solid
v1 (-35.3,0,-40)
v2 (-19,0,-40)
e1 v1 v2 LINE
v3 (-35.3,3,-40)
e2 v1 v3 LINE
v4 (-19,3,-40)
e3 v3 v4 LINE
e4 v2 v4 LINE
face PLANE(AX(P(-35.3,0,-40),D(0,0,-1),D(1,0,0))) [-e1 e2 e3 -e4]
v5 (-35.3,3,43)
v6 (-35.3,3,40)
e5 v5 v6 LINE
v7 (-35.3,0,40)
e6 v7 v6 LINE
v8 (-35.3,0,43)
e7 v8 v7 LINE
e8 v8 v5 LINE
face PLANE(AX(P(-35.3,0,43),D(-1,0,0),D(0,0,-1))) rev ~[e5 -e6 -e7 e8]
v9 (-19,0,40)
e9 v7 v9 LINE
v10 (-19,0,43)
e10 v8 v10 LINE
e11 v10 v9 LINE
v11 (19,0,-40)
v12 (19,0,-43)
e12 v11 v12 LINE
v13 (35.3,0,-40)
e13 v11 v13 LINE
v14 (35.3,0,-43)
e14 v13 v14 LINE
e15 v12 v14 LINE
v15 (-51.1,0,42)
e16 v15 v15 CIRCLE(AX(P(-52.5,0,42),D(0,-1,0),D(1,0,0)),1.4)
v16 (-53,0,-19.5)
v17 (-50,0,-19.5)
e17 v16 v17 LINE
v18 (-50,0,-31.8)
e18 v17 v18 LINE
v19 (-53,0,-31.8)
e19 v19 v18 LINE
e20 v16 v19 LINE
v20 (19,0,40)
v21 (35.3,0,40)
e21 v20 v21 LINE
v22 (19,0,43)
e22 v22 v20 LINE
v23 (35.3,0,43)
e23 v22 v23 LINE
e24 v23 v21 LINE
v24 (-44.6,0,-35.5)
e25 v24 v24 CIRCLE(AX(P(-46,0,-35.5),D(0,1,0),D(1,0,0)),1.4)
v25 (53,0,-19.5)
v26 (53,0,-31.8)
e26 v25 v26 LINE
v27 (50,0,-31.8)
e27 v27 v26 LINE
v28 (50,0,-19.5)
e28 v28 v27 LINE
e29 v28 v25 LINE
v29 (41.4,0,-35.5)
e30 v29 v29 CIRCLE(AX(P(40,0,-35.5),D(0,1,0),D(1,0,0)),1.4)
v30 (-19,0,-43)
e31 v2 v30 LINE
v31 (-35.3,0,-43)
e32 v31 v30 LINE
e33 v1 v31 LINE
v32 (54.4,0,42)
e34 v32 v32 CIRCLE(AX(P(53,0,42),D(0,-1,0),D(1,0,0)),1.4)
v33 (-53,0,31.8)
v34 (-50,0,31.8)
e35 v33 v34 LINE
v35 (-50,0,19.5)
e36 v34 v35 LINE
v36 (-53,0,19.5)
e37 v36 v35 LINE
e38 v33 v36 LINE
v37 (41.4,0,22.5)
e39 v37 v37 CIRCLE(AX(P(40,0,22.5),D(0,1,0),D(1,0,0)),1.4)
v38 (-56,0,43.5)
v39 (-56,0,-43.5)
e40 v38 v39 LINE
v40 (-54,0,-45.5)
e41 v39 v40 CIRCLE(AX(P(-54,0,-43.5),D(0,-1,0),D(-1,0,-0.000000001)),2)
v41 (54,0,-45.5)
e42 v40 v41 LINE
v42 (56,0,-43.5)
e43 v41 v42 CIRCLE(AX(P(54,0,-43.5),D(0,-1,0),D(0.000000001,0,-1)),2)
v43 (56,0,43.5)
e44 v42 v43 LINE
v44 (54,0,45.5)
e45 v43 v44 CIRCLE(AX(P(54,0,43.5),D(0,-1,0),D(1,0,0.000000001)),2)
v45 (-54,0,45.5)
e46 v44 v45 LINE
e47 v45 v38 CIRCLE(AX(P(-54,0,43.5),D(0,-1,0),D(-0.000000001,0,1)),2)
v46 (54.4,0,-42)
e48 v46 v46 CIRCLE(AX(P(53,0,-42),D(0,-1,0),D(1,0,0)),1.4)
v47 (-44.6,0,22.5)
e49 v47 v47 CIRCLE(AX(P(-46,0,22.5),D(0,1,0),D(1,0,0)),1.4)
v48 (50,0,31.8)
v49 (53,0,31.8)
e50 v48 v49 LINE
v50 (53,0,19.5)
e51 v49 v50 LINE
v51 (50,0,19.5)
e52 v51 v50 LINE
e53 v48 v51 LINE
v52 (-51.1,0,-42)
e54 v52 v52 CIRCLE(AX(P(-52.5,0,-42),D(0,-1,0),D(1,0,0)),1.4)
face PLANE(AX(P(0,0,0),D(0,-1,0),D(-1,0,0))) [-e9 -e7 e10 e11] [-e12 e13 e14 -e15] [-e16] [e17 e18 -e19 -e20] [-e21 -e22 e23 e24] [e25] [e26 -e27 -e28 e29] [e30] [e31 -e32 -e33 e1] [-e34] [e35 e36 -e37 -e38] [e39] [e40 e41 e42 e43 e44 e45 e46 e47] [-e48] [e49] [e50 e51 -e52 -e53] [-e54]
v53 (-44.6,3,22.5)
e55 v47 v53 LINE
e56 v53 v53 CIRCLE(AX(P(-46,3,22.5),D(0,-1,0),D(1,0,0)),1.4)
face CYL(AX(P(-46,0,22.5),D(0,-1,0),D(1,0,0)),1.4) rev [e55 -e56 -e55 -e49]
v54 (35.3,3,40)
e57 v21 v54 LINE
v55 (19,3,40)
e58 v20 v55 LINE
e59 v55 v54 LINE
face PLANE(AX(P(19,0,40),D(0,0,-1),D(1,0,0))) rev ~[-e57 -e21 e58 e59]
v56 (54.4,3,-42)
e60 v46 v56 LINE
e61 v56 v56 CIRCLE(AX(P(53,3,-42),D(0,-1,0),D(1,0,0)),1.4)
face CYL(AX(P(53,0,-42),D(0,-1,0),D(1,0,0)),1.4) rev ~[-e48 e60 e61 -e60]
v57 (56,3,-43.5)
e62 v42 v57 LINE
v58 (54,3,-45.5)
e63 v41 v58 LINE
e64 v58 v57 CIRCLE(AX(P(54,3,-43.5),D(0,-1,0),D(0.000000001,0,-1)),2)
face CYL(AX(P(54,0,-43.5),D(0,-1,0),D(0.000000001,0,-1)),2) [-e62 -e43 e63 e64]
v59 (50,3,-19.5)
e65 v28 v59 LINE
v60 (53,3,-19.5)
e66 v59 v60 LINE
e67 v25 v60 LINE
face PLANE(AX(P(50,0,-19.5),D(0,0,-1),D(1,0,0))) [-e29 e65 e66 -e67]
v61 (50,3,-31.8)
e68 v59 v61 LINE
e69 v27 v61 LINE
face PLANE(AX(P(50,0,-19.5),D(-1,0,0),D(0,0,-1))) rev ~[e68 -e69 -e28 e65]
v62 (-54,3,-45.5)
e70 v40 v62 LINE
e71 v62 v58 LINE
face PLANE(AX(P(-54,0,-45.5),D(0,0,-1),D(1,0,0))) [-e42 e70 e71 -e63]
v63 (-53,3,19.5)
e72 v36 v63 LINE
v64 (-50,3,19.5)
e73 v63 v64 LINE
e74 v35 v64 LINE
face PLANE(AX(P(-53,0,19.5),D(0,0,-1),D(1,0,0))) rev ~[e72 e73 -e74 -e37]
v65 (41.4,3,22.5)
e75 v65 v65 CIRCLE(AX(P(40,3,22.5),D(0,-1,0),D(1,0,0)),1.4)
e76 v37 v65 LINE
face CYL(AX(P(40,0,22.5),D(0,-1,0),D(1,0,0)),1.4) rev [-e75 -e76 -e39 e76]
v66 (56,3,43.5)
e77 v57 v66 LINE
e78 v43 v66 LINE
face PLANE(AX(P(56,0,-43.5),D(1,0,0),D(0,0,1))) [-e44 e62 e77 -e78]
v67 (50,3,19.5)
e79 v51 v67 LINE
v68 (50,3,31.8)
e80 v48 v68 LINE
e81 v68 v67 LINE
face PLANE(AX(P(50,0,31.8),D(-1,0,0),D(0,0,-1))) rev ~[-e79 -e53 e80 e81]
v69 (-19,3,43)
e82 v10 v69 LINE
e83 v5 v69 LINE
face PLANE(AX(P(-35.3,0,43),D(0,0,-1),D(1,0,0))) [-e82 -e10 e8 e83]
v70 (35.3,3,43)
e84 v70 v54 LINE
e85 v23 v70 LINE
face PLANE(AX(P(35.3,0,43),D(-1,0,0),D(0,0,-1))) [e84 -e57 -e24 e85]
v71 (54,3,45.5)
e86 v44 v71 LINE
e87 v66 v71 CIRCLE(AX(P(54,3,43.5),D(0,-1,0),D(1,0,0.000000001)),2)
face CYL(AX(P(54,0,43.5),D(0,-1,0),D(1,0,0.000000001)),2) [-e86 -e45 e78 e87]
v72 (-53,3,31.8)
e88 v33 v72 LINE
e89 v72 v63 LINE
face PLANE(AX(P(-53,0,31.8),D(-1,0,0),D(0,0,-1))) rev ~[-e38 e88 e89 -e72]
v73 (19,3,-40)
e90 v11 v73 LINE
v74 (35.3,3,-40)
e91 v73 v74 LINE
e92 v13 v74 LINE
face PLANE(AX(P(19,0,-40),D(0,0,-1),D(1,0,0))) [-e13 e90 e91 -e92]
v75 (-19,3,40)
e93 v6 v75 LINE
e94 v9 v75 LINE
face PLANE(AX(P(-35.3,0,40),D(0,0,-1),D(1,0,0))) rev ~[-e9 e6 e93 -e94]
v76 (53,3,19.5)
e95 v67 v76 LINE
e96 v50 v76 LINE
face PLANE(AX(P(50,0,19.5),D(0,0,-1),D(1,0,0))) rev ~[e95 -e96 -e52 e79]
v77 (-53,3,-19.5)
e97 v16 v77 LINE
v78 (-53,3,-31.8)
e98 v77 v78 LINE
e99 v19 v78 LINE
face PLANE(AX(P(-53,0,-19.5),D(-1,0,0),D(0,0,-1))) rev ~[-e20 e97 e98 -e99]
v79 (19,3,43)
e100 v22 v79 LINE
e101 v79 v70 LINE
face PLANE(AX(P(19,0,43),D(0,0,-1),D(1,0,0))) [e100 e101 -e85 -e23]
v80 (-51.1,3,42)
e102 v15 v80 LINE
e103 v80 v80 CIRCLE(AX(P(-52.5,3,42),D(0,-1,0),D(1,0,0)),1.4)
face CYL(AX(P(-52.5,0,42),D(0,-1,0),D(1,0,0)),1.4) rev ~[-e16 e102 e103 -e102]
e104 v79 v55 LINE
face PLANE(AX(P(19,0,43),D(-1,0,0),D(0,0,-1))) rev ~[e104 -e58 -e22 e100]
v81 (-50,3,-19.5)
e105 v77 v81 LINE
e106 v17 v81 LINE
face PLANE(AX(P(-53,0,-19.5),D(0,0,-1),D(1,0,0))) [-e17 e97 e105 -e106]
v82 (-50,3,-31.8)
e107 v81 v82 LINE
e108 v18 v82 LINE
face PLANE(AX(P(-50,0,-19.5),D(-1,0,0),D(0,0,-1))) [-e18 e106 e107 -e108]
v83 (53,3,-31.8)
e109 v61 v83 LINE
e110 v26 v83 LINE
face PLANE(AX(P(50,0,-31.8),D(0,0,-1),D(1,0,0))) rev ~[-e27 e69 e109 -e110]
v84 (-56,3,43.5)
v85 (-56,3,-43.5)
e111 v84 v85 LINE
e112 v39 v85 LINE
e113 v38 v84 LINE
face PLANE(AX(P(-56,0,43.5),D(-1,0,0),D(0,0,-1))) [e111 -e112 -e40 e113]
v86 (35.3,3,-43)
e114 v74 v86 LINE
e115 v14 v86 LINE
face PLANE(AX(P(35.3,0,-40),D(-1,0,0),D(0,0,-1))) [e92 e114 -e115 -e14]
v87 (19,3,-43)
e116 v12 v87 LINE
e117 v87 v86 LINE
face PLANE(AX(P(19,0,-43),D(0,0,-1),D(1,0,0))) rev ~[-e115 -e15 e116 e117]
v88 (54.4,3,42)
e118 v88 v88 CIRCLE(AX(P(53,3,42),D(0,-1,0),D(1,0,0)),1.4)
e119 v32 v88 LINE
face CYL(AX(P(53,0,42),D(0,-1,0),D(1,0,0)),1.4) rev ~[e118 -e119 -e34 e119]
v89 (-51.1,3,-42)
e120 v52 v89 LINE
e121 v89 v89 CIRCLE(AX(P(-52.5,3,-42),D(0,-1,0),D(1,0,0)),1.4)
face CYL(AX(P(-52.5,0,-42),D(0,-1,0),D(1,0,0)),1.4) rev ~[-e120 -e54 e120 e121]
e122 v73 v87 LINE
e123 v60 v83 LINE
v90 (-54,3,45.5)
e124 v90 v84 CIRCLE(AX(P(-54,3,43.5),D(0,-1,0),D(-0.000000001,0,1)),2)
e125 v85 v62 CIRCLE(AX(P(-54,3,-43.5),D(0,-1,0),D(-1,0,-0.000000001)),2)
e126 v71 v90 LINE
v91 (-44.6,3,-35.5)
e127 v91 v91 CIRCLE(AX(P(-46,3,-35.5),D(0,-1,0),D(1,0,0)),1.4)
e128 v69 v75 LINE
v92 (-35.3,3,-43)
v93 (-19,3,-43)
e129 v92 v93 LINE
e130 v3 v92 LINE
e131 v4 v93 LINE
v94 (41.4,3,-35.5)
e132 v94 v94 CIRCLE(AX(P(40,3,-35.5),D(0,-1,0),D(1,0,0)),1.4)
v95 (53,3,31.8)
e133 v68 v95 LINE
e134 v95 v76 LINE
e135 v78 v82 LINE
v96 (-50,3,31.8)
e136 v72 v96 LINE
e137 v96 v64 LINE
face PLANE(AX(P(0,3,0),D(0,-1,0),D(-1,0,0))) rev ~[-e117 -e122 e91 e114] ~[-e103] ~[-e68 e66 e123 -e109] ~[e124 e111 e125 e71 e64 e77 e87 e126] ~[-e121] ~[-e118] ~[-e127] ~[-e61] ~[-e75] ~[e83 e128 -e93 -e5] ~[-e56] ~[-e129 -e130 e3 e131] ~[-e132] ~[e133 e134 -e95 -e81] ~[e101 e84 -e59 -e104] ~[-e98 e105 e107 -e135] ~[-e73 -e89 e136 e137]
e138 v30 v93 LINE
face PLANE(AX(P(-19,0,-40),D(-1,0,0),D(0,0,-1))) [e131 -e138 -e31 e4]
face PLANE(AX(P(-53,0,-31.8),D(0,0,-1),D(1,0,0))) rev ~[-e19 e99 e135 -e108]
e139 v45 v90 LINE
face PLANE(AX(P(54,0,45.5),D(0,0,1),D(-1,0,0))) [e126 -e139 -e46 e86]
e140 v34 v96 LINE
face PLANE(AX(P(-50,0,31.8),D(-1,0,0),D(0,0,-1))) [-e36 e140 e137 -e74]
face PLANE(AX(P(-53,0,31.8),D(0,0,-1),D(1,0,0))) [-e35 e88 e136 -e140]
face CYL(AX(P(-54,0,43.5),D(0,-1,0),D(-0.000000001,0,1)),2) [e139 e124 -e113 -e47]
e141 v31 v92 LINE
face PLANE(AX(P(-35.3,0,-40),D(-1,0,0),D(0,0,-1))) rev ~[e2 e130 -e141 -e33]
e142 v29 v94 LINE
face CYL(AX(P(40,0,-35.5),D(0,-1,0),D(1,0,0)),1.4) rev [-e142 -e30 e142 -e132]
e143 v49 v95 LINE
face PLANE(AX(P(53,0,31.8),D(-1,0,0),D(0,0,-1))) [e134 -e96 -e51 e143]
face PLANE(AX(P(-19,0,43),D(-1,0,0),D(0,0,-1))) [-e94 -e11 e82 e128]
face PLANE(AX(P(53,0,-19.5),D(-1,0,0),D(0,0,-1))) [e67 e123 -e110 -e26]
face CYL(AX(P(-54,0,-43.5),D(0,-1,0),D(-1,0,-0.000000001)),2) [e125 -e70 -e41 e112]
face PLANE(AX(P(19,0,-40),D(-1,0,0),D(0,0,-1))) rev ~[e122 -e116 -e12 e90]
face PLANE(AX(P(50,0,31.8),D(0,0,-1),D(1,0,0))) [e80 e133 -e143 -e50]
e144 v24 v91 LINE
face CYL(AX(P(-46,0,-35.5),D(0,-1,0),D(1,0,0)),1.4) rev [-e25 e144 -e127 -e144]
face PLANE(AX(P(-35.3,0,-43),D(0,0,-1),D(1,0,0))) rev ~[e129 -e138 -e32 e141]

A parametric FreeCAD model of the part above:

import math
import FreeCAD as App
import Part
import Sketcher

V = App.Vector

doc = App.newDocument("Part")
body = doc.addObject("PartDesign::Body", "Body")

# Sketch on XZ plane
sketch1 = body.newObject("Sketcher::SketchObject", "Sketch")
sketch1.AttachmentSupport = (doc.getObject("XZ_Plane"), [""])
sketch1.MapMode = "FlatFace"
sketch1.addGeometry([
    Part.LineSegment(V(54, -45.5, 0), V(-54, -45.5, 0)),  # 0
    Part.ArcOfCircle(Part.Circle(V(-54, -43.5, 0), V(0, 0, 1), 2), math.radians(-180), math.radians(-90)),  # 1
    Part.LineSegment(V(-56, -43.5, 0), V(-56, 43.5, 0)),  # 2
    Part.ArcOfCircle(Part.Circle(V(-54, 43.5, 0), V(0, 0, 1), 2), math.radians(90), math.radians(180)),  # 3
    Part.LineSegment(V(-54, 45.5, 0), V(54, 45.5, 0)),  # 4
    Part.ArcOfCircle(Part.Circle(V(54, 43.5, 0), V(0, 0, 1), 2), math.radians(0), math.radians(90)),  # 5
    Part.LineSegment(V(56, 43.5, 0), V(56, -43.5, 0)),  # 6
    Part.ArcOfCircle(Part.Circle(V(54, -43.5, 0), V(0, 0, 1), 2), math.radians(-90), math.radians(0)),  # 7
    Part.LineSegment(V(19, 43, 0), V(19, 40, 0)),  # 8
    Part.LineSegment(V(19, 40, 0), V(35.3, 40, 0)),  # 9
    Part.LineSegment(V(35.3, 40, 0), V(35.3, 43, 0)),  # 10
    Part.LineSegment(V(35.3, 43, 0), V(19, 43, 0)),  # 11
    Part.LineSegment(V(50, 31.8, 0), V(50, 19.5, 0)),  # 12
    Part.LineSegment(V(50, 19.5, 0), V(53, 19.5, 0)),  # 13
    Part.LineSegment(V(53, 19.5, 0), V(53, 31.8, 0)),  # 14
    Part.LineSegment(V(53, 31.8, 0), V(50, 31.8, 0)),  # 15
    Part.LineSegment(V(-35.3, 43, 0), V(-35.3, 40, 0)),  # 16
    Part.LineSegment(V(-35.3, 40, 0), V(-19, 40, 0)),  # 17
    Part.LineSegment(V(-19, 40, 0), V(-19, 43, 0)),  # 18
    Part.LineSegment(V(-19, 43, 0), V(-35.3, 43, 0)),  # 19
    Part.LineSegment(V(-53, 31.8, 0), V(-53, 19.5, 0)),  # 20
    Part.LineSegment(V(-53, 19.5, 0), V(-50, 19.5, 0)),  # 21
    Part.LineSegment(V(-50, 19.5, 0), V(-50, 31.8, 0)),  # 22
    Part.LineSegment(V(-50, 31.8, 0), V(-53, 31.8, 0)),  # 23
    Part.LineSegment(V(50, -19.5, 0), V(50, -31.8, 0)),  # 24
    Part.LineSegment(V(50, -31.8, 0), V(53, -31.8, 0)),  # 25
    Part.LineSegment(V(53, -31.8, 0), V(53, -19.5, 0)),  # 26
    Part.LineSegment(V(53, -19.5, 0), V(50, -19.5, 0)),  # 27
    Part.LineSegment(V(19, -40, 0), V(19, -43, 0)),  # 28
    Part.LineSegment(V(19, -43, 0), V(35.3, -43, 0)),  # 29
    Part.LineSegment(V(35.3, -43, 0), V(35.3, -40, 0)),  # 30
    Part.LineSegment(V(35.3, -40, 0), V(19, -40, 0)),  # 31
    Part.LineSegment(V(-53, -19.5, 0), V(-53, -31.8, 0)),  # 32
    Part.LineSegment(V(-53, -31.8, 0), V(-50, -31.8, 0)),  # 33
    Part.LineSegment(V(-50, -31.8, 0), V(-50, -19.5, 0)),  # 34
    Part.LineSegment(V(-50, -19.5, 0), V(-53, -19.5, 0)),  # 35
    Part.LineSegment(V(-35.3, -40, 0), V(-35.3, -43, 0)),  # 36
    Part.LineSegment(V(-35.3, -43, 0), V(-19, -43, 0)),  # 37
    Part.LineSegment(V(-19, -43, 0), V(-19, -40, 0)),  # 38
    Part.LineSegment(V(-19, -40, 0), V(-35.3, -40, 0)),  # 39
], False)
sketch1.addConstraint([
    Sketcher.Constraint("Tangent", 0, 2, 1, 2),
    Sketcher.Constraint("Tangent", 1, 1, 2, 1),
    Sketcher.Constraint("Tangent", 2, 2, 3, 2),
    Sketcher.Constraint("Tangent", 3, 1, 4, 1),
    Sketcher.Constraint("Tangent", 4, 2, 5, 2),
    Sketcher.Constraint("Tangent", 5, 1, 6, 1),
    Sketcher.Constraint("Tangent", 6, 2, 7, 2),
    Sketcher.Constraint("Tangent", 7, 1, 0, 1),
    Sketcher.Constraint("Coincident", 8, 2, 9, 1),
    Sketcher.Constraint("Coincident", 9, 2, 10, 1),
    Sketcher.Constraint("Coincident", 10, 2, 11, 1),
    Sketcher.Constraint("Coincident", 11, 2, 8, 1),
    Sketcher.Constraint("Coincident", 12, 2, 13, 1),
    Sketcher.Constraint("Coincident", 13, 2, 14, 1),
    Sketcher.Constraint("Coincident", 14, 2, 15, 1),
    Sketcher.Constraint("Coincident", 15, 2, 12, 1),
    Sketcher.Constraint("Coincident", 16, 2, 17, 1),
    Sketcher.Constraint("Coincident", 17, 2, 18, 1),
    Sketcher.Constraint("Coincident", 18, 2, 19, 1),
    Sketcher.Constraint("Coincident", 19, 2, 16, 1),
    Sketcher.Constraint("Coincident", 20, 2, 21, 1),
    Sketcher.Constraint("Coincident", 21, 2, 22, 1),
    Sketcher.Constraint("Coincident", 22, 2, 23, 1),
    Sketcher.Constraint("Coincident", 23, 2, 20, 1),
    Sketcher.Constraint("Coincident", 24, 2, 25, 1),
    Sketcher.Constraint("Coincident", 25, 2, 26, 1),
    Sketcher.Constraint("Coincident", 26, 2, 27, 1),
    Sketcher.Constraint("Coincident", 27, 2, 24, 1),
    Sketcher.Constraint("Coincident", 28, 2, 29, 1),
    Sketcher.Constraint("Coincident", 29, 2, 30, 1),
    Sketcher.Constraint("Coincident", 30, 2, 31, 1),
    Sketcher.Constraint("Coincident", 31, 2, 28, 1),
    Sketcher.Constraint("Coincident", 32, 2, 33, 1),
    Sketcher.Constraint("Coincident", 33, 2, 34, 1),
    Sketcher.Constraint("Coincident", 34, 2, 35, 1),
    Sketcher.Constraint("Coincident", 35, 2, 32, 1),
    Sketcher.Constraint("Coincident", 36, 2, 37, 1),
    Sketcher.Constraint("Coincident", 37, 2, 38, 1),
    Sketcher.Constraint("Coincident", 38, 2, 39, 1),
    Sketcher.Constraint("Coincident", 39, 2, 36, 1),
    Sketcher.Constraint("Horizontal", 0),
    Sketcher.Constraint("Vertical", 2),
    Sketcher.Constraint("Horizontal", 4),
    Sketcher.Constraint("Vertical", 6),
    Sketcher.Constraint("Vertical", 8),
    Sketcher.Constraint("Horizontal", 9),
    Sketcher.Constraint("Vertical", 10),
    Sketcher.Constraint("Horizontal", 11),
    Sketcher.Constraint("Vertical", 12),
    Sketcher.Constraint("Horizontal", 13),
    Sketcher.Constraint("Vertical", 14),
    Sketcher.Constraint("Horizontal", 15),
    Sketcher.Constraint("Vertical", 16),
    Sketcher.Constraint("Horizontal", 17),
    Sketcher.Constraint("Vertical", 18),
    Sketcher.Constraint("Horizontal", 19),
    Sketcher.Constraint("Vertical", 20),
    Sketcher.Constraint("Horizontal", 21),
    Sketcher.Constraint("Vertical", 22),
    Sketcher.Constraint("Horizontal", 23),
    Sketcher.Constraint("Vertical", 24),
    Sketcher.Constraint("Horizontal", 25),
    Sketcher.Constraint("Vertical", 26),
    Sketcher.Constraint("Horizontal", 27),
    Sketcher.Constraint("Vertical", 28),
    Sketcher.Constraint("Horizontal", 29),
    Sketcher.Constraint("Vertical", 30),
    Sketcher.Constraint("Horizontal", 31),
    Sketcher.Constraint("Vertical", 32),
    Sketcher.Constraint("Horizontal", 33),
    Sketcher.Constraint("Vertical", 34),
    Sketcher.Constraint("Horizontal", 35),
    Sketcher.Constraint("Vertical", 36),
    Sketcher.Constraint("Horizontal", 37),
    Sketcher.Constraint("Vertical", 38),
    Sketcher.Constraint("Horizontal", 39),
    Sketcher.Constraint("Equal", 1, 3),
    Sketcher.Constraint("Equal", 3, 5),
    Sketcher.Constraint("Equal", 5, 7),
    Sketcher.Constraint("Symmetric", 1, 3, 5, 3, -1, 1),
    Sketcher.Constraint("Symmetric", 22, 2, 24, 2, -1, 1),
    Sketcher.Constraint("Symmetric", 20, 2, 26, 2, -1, 1),
    Sketcher.Constraint("Symmetric", 18, 2, 28, 2, -1, 1),
    Sketcher.Constraint("Symmetric", 16, 2, 30, 2, -1, 1),
    Sketcher.Constraint("Symmetric", 14, 2, 32, 2, -1, 1),
    Sketcher.Constraint("Symmetric", 12, 2, 34, 2, -1, 1),
    Sketcher.Constraint("Symmetric", 10, 2, 36, 2, -1, 1),
    Sketcher.Constraint("Symmetric", 8, 2, 38, 2, -1, 1),
    Sketcher.Constraint("Symmetric", 9, 2, 16, 2, -2),
    Sketcher.Constraint("Symmetric", 11, 2, 18, 2, -2),
    Sketcher.Constraint("Symmetric", 13, 2, 20, 2, -2),
    Sketcher.Constraint("Symmetric", 15, 2, 22, 2, -2),
    Sketcher.Constraint("Equal", 35, 8),
    Sketcher.Constraint("Radius", 1, 2.0),
    Sketcher.Constraint("DistanceX", 0, 2, 0, 1, 108.0),
    Sketcher.Constraint("DistanceX", 13, 1, 13, 2, 3.0),
    Sketcher.Constraint("DistanceY", 2, 1, 2, 2, 87.0),
    Sketcher.Constraint("DistanceX", 9, 1, 9, 2, 16.3),
    Sketcher.Constraint("DistanceY", 12, 2, 12, 1, 12.3),
    Sketcher.Constraint("DistanceX", -1, 1, 8, 2, 19.0),
    Sketcher.Constraint("DistanceY", -1, 1, 8, 2, 40.0),
    Sketcher.Constraint("DistanceX", -1, 1, 12, 2, 50.0),
    Sketcher.Constraint("DistanceY", 12, 2, 5, 3, 24.0),
])
pad1 = body.newObject("PartDesign::Pad", "Pad")
pad1.Profile = sketch1
pad1.Length = 3
pad1.Reversed = True

# Sketch on XZ plane
sketch2 = body.newObject("Sketcher::SketchObject", "Sketch001")
sketch2.AttachmentSupport = (doc.getObject("XZ_Plane"), [""])
sketch2.MapMode = "FlatFace"
sketch2.addGeometry(Part.Circle(V(53, -42, 0), V(0, 0, 1), 1.4), False)
sketch2.addConstraint([
    Sketcher.Constraint("Diameter", 0, 2.8),
    Sketcher.Constraint("DistanceX", -1, 1, 0, 3, 53.0),
    Sketcher.Constraint("DistanceY", 0, 3, -1, 1, 42.0),
])
pocket1 = body.newObject("PartDesign::Pocket", "Pocket")
pocket1.Profile = sketch2
pocket1.Type = "UpToFirst"

# Sketch on XZ plane
sketch3 = body.newObject("Sketcher::SketchObject", "Sketch002")
sketch3.AttachmentSupport = (doc.getObject("XZ_Plane"), [""])
sketch3.MapMode = "FlatFace"
sketch3.addGeometry(Part.Circle(V(-52.5, -42, 0), V(0, 0, 1), 1.4), False)
sketch3.addConstraint([
    Sketcher.Constraint("Diameter", 0, 2.8),
    Sketcher.Constraint("DistanceY", 0, 3, -1, 1, 42.0),
    Sketcher.Constraint("DistanceX", 0, 3, -1, 1, 52.5),
])
pocket2 = body.newObject("PartDesign::Pocket", "Pocket001")
pocket2.Profile = sketch3
pocket2.Type = "UpToFirst"

# Sketch on XZ plane
sketch4 = body.newObject("Sketcher::SketchObject", "Sketch003")
sketch4.AttachmentSupport = (doc.getObject("XZ_Plane"), [""])
sketch4.MapMode = "FlatFace"
sketch4.addGeometry(Part.Circle(V(-52.5, 42, 0), V(0, 0, 1), 1.4), False)
sketch4.addConstraint([
    Sketcher.Constraint("Diameter", 0, 2.8),
    Sketcher.Constraint("DistanceY", -1, 1, 0, 3, 42.0),
    Sketcher.Constraint("DistanceX", 0, 3, -1, 1, 52.5),
])
pocket3 = body.newObject("PartDesign::Pocket", "Pocket002")
pocket3.Profile = sketch4
pocket3.Type = "UpToFirst"

# Sketch on XZ plane
sketch5 = body.newObject("Sketcher::SketchObject", "Sketch004")
sketch5.AttachmentSupport = (doc.getObject("XZ_Plane"), [""])
sketch5.MapMode = "FlatFace"
sketch5.addGeometry(Part.Circle(V(53, 42, 0), V(0, 0, 1), 1.4), False)
sketch5.addConstraint([
    Sketcher.Constraint("Diameter", 0, 2.8),
    Sketcher.Constraint("DistanceX", -1, 1, 0, 3, 53.0),
    Sketcher.Constraint("DistanceY", -1, 1, 0, 3, 42.0),
])
pocket4 = body.newObject("PartDesign::Pocket", "Pocket003")
pocket4.Profile = sketch5
pocket4.Type = "UpToFirst"

# Sketch on XZ plane
sketch6 = body.newObject("Sketcher::SketchObject", "Sketch005")
sketch6.AttachmentSupport = (doc.getObject("XZ_Plane"), [""])
sketch6.MapMode = "FlatFace"
sketch6.addGeometry(Part.Circle(V(40, 22.5, 0), V(0, 0, 1), 1.4), False)
sketch6.addConstraint([
    Sketcher.Constraint("Diameter", 0, 2.8),
    Sketcher.Constraint("DistanceX", -1, 1, 0, 3, 40.0),
    Sketcher.Constraint("DistanceY", -1, 1, 0, 3, 22.5),
])
pocket5 = body.newObject("PartDesign::Pocket", "Pocket004")
pocket5.Profile = sketch6
pocket5.Type = "UpToFirst"

# Sketch on XZ plane
sketch7 = body.newObject("Sketcher::SketchObject", "Sketch006")
sketch7.AttachmentSupport = (doc.getObject("XZ_Plane"), [""])
sketch7.MapMode = "FlatFace"
sketch7.addGeometry(Part.Circle(V(40, -35.5, 0), V(0, 0, 1), 1.4), False)
sketch7.addConstraint([
    Sketcher.Constraint("Diameter", 0, 2.8),
    Sketcher.Constraint("DistanceX", -1, 1, 0, 3, 40.0),
    Sketcher.Constraint("DistanceY", 0, 3, -1, 1, 35.5),
])
pocket6 = body.newObject("PartDesign::Pocket", "Pocket005")
pocket6.Profile = sketch7
pocket6.Type = "UpToFirst"

# Sketch on XZ plane
sketch8 = body.newObject("Sketcher::SketchObject", "Sketch007")
sketch8.AttachmentSupport = (doc.getObject("XZ_Plane"), [""])
sketch8.MapMode = "FlatFace"
sketch8.addGeometry(Part.Circle(V(-46, -35.5, 0), V(0, 0, 1), 1.4), False)
sketch8.addConstraint([
    Sketcher.Constraint("Diameter", 0, 2.8),
    Sketcher.Constraint("DistanceX", 0, 3, -1, 1, 46.0),
    Sketcher.Constraint("DistanceY", 0, 3, -1, 1, 35.5),
])
pocket7 = body.newObject("PartDesign::Pocket", "Pocket006")
pocket7.Profile = sketch8
pocket7.Type = "UpToFirst"

# Sketch on XZ plane
sketch9 = body.newObject("Sketcher::SketchObject", "Sketch008")
sketch9.AttachmentSupport = (doc.getObject("XZ_Plane"), [""])
sketch9.MapMode = "FlatFace"
sketch9.addGeometry(Part.Circle(V(-46, 22.5, 0), V(0, 0, 1), 1.4), False)
sketch9.addConstraint([
    Sketcher.Constraint("Diameter", 0, 2.8),
    Sketcher.Constraint("DistanceX", 0, 3, -1, 1, 46.0),
    Sketcher.Constraint("DistanceY", -1, 1, 0, 3, 22.5),
])
pocket8 = body.newObject("PartDesign::Pocket", "Pocket007")
pocket8.Profile = sketch9
pocket8.Type = "UpToFirst"

doc.recompute()
